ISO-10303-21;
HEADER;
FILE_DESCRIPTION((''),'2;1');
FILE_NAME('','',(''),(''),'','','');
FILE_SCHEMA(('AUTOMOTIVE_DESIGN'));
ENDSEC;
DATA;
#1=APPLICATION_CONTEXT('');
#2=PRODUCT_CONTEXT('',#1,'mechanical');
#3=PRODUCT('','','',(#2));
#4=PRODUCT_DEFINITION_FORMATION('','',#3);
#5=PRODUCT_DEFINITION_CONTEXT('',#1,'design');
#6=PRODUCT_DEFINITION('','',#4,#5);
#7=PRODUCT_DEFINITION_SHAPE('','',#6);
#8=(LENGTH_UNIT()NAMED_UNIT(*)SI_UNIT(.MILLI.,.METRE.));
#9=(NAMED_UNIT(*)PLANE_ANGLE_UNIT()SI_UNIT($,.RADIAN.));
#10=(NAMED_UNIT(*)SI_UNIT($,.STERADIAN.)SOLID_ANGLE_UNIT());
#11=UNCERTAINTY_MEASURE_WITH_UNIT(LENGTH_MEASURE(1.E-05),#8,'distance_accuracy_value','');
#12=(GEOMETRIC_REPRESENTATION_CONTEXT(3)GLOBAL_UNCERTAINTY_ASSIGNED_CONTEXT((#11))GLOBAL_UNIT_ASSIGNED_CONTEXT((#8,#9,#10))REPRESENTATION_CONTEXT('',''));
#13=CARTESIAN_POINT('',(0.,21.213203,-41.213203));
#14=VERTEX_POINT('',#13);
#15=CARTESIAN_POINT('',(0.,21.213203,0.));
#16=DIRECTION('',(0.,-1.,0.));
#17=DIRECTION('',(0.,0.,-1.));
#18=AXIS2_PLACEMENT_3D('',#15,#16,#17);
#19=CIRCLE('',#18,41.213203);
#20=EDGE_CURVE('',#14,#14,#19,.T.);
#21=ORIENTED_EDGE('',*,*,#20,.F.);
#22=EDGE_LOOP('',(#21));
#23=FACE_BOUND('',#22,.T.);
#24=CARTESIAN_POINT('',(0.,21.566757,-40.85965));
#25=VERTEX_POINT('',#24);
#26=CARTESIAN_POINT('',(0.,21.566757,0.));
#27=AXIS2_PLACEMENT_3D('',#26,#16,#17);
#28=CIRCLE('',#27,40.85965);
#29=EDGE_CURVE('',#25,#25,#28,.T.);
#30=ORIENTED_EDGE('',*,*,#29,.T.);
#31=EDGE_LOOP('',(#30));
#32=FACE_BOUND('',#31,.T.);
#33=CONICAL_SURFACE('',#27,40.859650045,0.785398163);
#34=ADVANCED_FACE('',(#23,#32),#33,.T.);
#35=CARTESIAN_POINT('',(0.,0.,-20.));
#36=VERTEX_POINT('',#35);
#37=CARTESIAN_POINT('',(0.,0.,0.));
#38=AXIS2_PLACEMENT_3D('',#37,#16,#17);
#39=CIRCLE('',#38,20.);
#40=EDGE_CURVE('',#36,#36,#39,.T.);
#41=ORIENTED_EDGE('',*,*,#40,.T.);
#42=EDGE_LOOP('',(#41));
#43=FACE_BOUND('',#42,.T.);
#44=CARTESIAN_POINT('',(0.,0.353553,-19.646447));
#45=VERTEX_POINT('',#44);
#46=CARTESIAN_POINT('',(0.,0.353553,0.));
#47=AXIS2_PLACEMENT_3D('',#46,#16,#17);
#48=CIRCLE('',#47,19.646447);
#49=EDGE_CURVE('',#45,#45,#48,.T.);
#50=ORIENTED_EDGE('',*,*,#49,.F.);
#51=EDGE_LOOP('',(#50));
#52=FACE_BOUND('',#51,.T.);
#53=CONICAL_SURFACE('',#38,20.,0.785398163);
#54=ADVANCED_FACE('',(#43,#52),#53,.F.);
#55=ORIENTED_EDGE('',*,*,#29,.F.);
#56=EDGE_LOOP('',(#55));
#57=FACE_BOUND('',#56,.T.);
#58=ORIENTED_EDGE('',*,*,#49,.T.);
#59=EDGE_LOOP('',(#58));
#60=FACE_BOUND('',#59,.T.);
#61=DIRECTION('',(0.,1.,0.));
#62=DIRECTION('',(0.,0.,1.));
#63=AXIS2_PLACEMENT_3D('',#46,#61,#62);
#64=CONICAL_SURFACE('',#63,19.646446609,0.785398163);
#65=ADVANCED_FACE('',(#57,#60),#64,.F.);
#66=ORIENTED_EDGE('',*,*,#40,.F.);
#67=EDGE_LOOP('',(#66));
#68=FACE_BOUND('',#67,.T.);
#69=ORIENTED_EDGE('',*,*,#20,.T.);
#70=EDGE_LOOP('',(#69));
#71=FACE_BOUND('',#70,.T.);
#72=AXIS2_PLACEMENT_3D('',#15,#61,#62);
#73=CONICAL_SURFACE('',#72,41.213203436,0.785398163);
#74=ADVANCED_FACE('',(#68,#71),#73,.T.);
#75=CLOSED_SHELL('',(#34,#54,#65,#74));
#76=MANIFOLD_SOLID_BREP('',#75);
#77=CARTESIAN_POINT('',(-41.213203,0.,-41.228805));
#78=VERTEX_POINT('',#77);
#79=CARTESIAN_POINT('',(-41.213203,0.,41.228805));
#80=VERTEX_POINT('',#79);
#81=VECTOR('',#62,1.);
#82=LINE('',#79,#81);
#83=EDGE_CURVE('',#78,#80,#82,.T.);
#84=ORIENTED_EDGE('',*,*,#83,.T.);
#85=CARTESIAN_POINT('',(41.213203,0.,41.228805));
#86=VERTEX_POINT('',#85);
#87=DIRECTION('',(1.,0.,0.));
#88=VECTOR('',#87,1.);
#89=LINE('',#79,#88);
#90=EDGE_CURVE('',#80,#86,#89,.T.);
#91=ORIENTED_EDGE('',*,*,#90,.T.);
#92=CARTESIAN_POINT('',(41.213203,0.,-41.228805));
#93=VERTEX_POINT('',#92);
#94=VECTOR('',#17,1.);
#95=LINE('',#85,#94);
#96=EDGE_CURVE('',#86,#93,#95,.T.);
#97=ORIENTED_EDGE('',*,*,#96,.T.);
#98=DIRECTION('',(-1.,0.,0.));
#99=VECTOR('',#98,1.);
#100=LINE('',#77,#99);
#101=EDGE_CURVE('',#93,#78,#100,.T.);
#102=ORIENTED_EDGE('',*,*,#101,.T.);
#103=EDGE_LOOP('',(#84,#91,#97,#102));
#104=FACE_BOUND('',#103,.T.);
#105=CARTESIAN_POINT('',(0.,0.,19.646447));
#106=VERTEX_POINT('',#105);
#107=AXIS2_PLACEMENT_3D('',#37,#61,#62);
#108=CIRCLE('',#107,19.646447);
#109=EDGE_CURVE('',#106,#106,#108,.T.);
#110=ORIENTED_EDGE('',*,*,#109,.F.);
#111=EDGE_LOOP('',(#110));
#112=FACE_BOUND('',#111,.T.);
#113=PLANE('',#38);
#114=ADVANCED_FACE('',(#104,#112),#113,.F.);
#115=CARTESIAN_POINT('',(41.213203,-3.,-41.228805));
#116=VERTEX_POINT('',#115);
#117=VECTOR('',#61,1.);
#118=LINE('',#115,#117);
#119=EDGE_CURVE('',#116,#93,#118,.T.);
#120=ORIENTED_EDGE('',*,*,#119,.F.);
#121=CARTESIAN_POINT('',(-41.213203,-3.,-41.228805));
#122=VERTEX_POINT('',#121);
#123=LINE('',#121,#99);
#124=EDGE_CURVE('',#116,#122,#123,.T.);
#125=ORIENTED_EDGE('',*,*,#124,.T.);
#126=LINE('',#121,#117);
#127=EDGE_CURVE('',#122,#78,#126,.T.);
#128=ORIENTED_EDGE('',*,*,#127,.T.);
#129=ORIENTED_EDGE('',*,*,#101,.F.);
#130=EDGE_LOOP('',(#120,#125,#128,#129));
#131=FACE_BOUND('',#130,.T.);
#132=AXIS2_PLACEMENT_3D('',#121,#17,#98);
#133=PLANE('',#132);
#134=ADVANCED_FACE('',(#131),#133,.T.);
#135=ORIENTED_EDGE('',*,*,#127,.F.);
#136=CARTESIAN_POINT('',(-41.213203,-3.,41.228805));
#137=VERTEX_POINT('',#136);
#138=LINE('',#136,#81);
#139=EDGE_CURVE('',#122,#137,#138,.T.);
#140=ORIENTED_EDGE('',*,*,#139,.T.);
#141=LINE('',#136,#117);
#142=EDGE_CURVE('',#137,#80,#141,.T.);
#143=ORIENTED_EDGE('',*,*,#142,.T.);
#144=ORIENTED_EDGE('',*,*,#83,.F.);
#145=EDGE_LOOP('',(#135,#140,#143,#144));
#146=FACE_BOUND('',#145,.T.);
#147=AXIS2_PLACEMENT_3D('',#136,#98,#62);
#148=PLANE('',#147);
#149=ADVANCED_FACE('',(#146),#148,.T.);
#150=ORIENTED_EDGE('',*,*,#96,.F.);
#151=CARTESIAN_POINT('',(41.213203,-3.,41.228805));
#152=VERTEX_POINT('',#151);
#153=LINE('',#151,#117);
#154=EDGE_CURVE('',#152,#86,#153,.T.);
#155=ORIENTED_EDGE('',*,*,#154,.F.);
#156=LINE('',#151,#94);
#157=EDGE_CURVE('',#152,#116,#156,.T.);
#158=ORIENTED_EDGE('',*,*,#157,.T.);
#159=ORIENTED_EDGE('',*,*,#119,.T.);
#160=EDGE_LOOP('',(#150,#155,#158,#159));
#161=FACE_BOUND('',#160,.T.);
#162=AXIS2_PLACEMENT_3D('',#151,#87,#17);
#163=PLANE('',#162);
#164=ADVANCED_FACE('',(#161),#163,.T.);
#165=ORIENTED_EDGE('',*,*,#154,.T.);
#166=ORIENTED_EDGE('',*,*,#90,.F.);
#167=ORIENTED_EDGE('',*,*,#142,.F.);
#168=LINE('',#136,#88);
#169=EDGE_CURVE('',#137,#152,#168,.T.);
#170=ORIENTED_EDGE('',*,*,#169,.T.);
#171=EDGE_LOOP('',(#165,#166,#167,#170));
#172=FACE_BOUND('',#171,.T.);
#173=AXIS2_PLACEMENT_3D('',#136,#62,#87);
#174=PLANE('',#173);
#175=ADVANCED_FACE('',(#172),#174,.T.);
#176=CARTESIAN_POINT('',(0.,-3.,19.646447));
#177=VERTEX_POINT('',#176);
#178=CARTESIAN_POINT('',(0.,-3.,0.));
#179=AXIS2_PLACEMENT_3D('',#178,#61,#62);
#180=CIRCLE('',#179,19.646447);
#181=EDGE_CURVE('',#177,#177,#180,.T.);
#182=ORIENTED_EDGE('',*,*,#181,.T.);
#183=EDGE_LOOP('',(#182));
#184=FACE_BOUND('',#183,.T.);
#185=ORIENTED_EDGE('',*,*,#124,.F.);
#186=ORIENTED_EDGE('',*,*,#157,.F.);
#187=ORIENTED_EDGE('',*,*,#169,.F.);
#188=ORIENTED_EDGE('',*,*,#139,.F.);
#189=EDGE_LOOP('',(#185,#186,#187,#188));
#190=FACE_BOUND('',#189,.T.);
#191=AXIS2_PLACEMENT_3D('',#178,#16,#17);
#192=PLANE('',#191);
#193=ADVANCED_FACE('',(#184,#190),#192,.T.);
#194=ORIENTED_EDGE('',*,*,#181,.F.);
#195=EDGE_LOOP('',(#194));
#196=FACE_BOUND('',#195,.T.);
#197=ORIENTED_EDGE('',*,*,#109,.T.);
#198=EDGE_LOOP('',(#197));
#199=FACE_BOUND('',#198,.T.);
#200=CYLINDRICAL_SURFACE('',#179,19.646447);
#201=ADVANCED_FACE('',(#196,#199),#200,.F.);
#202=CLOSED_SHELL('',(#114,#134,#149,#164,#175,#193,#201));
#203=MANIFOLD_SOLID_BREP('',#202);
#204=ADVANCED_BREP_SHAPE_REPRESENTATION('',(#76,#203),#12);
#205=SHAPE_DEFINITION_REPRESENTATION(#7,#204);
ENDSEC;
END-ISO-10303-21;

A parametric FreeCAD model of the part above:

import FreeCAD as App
import Part
import Sketcher

V = App.Vector
Q = App.Units.Quantity


def add_polygon(sketch, points):
    """Adds a closed chain of lines whose ends are joined by coincident constraints."""
    first, n = sketch.GeometryCount, len(points)
    for a, b in zip(points, points[1:] + points[:1]):
        sketch.addGeometry(Part.LineSegment(App.Vector(*a, 0), App.Vector(*b, 0)), False)
    for i in range(n):
        sketch.addConstraint(Sketcher.Constraint("Coincident", first + i, 2, first + (i + 1) % n, 1))

doc = App.newDocument("Part")
body = doc.addObject("PartDesign::Body", "Body")

sketch1 = body.newObject("Sketcher::SketchObject", "Sketch")
sketch1.AttachmentSupport = (doc.getObject("XY_Plane"), [""])
sketch1.MapMode = "FlatFace"
add_polygon(sketch1, [(-41.213203, 21.213203), (-20, 0), (-19.646447, 0.353553), (-40.85965, 21.566757)])
sketch1.addConstraint([
    Sketcher.Constraint("PointOnObject", 0, 2, -1),
    Sketcher.Constraint("Perpendicular", 0, 1),
    Sketcher.Constraint("Perpendicular", 1, 2),
    Sketcher.Constraint("Perpendicular", 2, 3),
    Sketcher.Constraint("Angle", 0, Q("-45 deg")),
    Sketcher.Constraint("Distance", 0, 30.0),
    Sketcher.Constraint("DistanceX", 0, 2, -1, 1, 20.0),
    Sketcher.Constraint("Distance", 1, 0.5),
])
revolution = body.newObject("PartDesign::Revolution", "Revolution")
revolution.Profile = sketch1
revolution.ReferenceAxis = (sketch1, ["V_Axis"])
revolution.Angle = 360
body2 = doc.addObject("PartDesign::Body", "Body001")

sketch2 = body2.newObject("Sketcher::SketchObject", "Sketch001")
sketch2.AttachmentSupport = (doc.getObject("XZ_Plane001"), [""])
sketch2.MapMode = "FlatFace"
add_polygon(sketch2, [(-41.213203, -41.228805), (-41.213203, 41.228805), (41.213203, 41.228805), (41.213203, -41.228805)])
sketch2.addGeometry(Part.Circle(V(0, 0, 0), V(0, 0, 1), 19.646447), False)
sketch2.addConstraint([
    Sketcher.Constraint("Vertical", 0),
    Sketcher.Constraint("Horizontal", 1),
    Sketcher.Constraint("Vertical", 2),
    Sketcher.Constraint("Horizontal", 3),
    Sketcher.Constraint("Coincident", 4, 3, -1, 1),
    Sketcher.Constraint("Symmetric", 0, 2, 2, 2, -1, 1),
    Sketcher.Constraint("Diameter", 4, 39.292893),
    Sketcher.Constraint("DistanceY", 0, 1, 0, 2, 82.457609),
    Sketcher.Constraint("DistanceX", 1, 1, 1, 2, 82.426407),
])
pad1 = body2.newObject("PartDesign::Pad", "Pad")
pad1.Profile = sketch2
pad1.Length = 3

doc.recompute()
